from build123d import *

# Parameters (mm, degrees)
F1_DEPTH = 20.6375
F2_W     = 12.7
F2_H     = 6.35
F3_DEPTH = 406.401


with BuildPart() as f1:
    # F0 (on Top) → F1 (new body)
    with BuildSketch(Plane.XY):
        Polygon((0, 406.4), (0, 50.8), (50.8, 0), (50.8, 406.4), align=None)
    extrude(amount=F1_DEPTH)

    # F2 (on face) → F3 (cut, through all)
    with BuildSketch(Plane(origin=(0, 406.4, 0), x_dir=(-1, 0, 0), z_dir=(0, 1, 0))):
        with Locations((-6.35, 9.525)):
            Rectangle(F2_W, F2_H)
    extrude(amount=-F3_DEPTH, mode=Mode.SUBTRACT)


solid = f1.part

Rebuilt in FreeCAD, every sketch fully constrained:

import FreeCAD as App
import Part
import Sketcher
Q = App.Units.Quantity

doc = App.newDocument("Part")
body = doc.addObject("PartDesign::Body", "Body")

sketch1 = body.newObject("Sketcher::SketchObject", "Sketch")
sketch1.AttachmentSupport = (doc.getObject("XY_Plane"), [""])
sketch1.MapMode = "FlatFace"
sketch1.addGeometry([
    Part.LineSegment(App.Vector(0, 406, 0), App.Vector(0, 51, 0)),
    Part.LineSegment(App.Vector(0, 51, 0), App.Vector(51, 0, 0)),
    Part.LineSegment(App.Vector(51, 0, 0), App.Vector(51, 406, 0)),
    Part.LineSegment(App.Vector(51, 406, 0), App.Vector(0, 406, 0)),
], False)
sketch1.addConstraint([
    Sketcher.Constraint("Coincident", 0, 2, 1, 1),
    Sketcher.Constraint("Coincident", 1, 2, 2, 1),
    Sketcher.Constraint("Coincident", 2, 2, 3, 1),
    Sketcher.Constraint("Coincident", 3, 2, 0, 1),
    Sketcher.Constraint("Vertical", 0),
    Sketcher.Constraint("Vertical", 2),
    Sketcher.Constraint("Horizontal", 3),
    Sketcher.Constraint("PointOnObject", 0, 2, -2),
    Sketcher.Constraint("PointOnObject", 1, 2, -1),
    Sketcher.Constraint("DistanceX", 3, 2, 3, 1, Q("2 in")),
    Sketcher.Constraint("DistanceY", 0, 2, 0, 1, Q("14 in")),
    Sketcher.Constraint("DistanceY", 2, 1, 2, 2, Q("16 in")),
])
pad1 = body.newObject("PartDesign::Pad", "Pad")
pad1.Profile = sketch1
pad1.Length = Q("0.8125 in")

sketch2 = body.newObject("Sketcher::SketchObject", "Sketch001")
sketch2.AttachmentSupport = (doc.getObject("XZ_Plane"), [""])
sketch2.MapMode = "FlatFace"
sketch2.AttachmentOffset = App.Placement(App.Vector(0, 0, -16 * 25.4), App.Rotation())
sketch2.addGeometry([
    Part.LineSegment(App.Vector(13, 13, 0), App.Vector(13, 6, 0)),
    Part.LineSegment(App.Vector(13, 6, 0), App.Vector(0, 6, 0)),
    Part.LineSegment(App.Vector(0, 6, 0), App.Vector(0, 13, 0)),
    Part.LineSegment(App.Vector(0, 13, 0), App.Vector(13, 13, 0)),
], False)
sketch2.addConstraint([
    Sketcher.Constraint("Coincident", 0, 2, 1, 1),
    Sketcher.Constraint("Coincident", 1, 2, 2, 1),
    Sketcher.Constraint("Coincident", 2, 2, 3, 1),
    Sketcher.Constraint("Coincident", 3, 2, 0, 1),
    Sketcher.Constraint("Vertical", 0),
    Sketcher.Constraint("Horizontal", 1),
    Sketcher.Constraint("Vertical", 2),
    Sketcher.Constraint("Horizontal", 3),
    Sketcher.Constraint("PointOnObject", 1, 2, -2),
    Sketcher.Constraint("DistanceX", 1, 2, 1, 1, Q("0.5 in")),
    Sketcher.Constraint("DistanceY", 0, 2, 0, 1, Q("0.25 in")),
    Sketcher.Constraint("DistanceY", -1, 1, 2, 2, Q("0.5 in")),
])
pocket1 = body.newObject("PartDesign::Pocket", "Pocket")
pocket1.Profile = sketch2
pocket1.Type = "ThroughAll"
pocket1.Reversed = True

doc.recompute()
